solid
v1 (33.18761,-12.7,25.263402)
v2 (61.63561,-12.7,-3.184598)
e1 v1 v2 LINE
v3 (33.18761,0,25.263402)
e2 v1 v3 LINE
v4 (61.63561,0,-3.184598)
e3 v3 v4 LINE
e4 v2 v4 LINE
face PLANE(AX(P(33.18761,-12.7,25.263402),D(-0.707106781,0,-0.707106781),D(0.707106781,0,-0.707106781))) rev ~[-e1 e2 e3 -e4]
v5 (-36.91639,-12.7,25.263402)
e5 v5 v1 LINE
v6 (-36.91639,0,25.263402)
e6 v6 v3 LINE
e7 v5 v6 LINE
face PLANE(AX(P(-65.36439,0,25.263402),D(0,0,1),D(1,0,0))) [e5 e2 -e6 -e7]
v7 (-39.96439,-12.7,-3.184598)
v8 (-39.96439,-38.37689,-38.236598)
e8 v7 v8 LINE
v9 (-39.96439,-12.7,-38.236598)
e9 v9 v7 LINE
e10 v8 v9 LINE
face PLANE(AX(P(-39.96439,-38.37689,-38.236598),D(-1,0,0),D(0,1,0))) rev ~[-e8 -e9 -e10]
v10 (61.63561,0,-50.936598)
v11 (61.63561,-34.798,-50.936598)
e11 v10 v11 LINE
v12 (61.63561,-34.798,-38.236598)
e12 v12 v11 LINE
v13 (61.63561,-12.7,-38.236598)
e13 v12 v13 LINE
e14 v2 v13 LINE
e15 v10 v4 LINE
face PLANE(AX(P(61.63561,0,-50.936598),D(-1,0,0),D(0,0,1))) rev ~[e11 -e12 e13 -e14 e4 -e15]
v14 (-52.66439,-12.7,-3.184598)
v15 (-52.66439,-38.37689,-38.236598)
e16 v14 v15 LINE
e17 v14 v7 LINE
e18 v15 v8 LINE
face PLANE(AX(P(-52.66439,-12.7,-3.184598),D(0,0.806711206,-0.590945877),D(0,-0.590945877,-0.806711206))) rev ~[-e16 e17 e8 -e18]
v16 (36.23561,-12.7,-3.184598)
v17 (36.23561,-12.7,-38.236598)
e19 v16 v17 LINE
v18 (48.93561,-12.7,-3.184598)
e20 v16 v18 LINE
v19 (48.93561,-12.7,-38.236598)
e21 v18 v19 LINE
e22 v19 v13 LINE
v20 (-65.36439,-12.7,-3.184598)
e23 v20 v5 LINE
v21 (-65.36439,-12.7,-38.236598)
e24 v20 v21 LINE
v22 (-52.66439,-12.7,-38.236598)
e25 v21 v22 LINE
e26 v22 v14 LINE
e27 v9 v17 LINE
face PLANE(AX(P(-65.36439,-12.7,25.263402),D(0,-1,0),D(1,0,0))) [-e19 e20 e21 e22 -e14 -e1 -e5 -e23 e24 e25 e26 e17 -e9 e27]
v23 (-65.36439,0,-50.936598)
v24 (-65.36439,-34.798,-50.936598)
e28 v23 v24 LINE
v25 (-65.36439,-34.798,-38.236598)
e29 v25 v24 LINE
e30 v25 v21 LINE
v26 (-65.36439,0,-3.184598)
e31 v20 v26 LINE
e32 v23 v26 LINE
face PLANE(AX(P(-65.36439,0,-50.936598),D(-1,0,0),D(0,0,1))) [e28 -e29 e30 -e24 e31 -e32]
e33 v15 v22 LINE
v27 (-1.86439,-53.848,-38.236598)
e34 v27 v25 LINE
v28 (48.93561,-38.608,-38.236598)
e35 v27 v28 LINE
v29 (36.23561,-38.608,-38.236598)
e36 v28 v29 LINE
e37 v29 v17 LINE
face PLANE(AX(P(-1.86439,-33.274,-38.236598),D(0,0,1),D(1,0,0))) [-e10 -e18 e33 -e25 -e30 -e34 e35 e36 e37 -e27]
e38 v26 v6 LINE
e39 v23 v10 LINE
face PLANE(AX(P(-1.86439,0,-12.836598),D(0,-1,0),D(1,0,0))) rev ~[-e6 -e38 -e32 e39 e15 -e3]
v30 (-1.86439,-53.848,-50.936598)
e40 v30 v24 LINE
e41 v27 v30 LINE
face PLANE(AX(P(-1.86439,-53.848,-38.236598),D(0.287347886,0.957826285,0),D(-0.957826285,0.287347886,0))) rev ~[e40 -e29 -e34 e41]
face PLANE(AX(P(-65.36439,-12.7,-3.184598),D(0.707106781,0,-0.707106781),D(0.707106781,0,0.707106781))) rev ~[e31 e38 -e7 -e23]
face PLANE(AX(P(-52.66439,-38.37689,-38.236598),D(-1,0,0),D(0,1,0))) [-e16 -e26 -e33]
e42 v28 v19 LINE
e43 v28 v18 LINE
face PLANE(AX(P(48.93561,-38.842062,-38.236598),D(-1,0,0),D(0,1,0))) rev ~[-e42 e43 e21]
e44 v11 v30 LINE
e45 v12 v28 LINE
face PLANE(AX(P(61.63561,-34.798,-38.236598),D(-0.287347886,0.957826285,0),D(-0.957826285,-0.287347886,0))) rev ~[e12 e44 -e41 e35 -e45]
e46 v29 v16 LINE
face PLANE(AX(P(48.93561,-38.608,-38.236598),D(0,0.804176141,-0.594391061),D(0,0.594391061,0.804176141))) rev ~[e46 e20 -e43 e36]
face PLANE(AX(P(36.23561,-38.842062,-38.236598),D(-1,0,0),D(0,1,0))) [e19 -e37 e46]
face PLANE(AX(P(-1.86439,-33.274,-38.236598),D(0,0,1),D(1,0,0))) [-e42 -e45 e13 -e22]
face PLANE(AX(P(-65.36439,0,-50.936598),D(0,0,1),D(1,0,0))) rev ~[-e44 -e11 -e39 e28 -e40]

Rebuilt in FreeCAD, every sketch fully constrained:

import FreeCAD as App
import Part
import Sketcher
from FreeCAD import Vector
Q = App.Units.Quantity


def add_polygon(sketch, points):
    """Adds a closed chain of lines whose ends are joined by coincident constraints."""
    first, n = sketch.GeometryCount, len(points)
    for a, b in zip(points, points[1:] + points[:1]):
        sketch.addGeometry(Part.LineSegment(App.Vector(*a, 0), App.Vector(*b, 0)), False)
    for i in range(n):
        sketch.addConstraint(Sketcher.Constraint("Coincident", first + i, 2, first + (i + 1) % n, 1))

doc = App.newDocument("Part")
body = doc.addObject("PartDesign::Body", "Body")

sketch1 = doc.addObject("Sketcher::SketchObject", "Sketch")
body.addObject(sketch1)
sketch1.AttachmentSupport = (doc.XZ_Plane, [""])
sketch1.MapMode = "FlatFace"
add_polygon(sketch1, [(-65.36439, 25.263402), (-65.36439, -50.936598), (61.63561, -50.936598), (61.63561, 25.263402)])
sketch1.addConstraint([
    Sketcher.Constraint("Vertical", 0),
    Sketcher.Constraint("Horizontal", 1),
    Sketcher.Constraint("Vertical", 2),
    Sketcher.Constraint("Horizontal", 3),
    Sketcher.Constraint("DistanceX", 1, 1, 1, 2, Q("5 in")),
    Sketcher.Constraint("DistanceY", 0, 2, 0, 1, Q("3 in")),
    Sketcher.Constraint("DistanceY", -1, 1, 2, 2, Q("25.263402 mm")),
    Sketcher.Constraint("DistanceX", 0, 2, -1, 1, Q("65.36439 mm")),
])
pad1 = doc.addObject("PartDesign::Pad", "Pad")
body.addObject(pad1)
pad1.Profile = sketch1
pad1.Length = Q("2.12 in")

sketch2 = doc.addObject("Sketcher::SketchObject", "Sketch001")
body.addObject(sketch2)
sketch2.AttachmentSupport = (doc.XY_Plane, [""])
sketch2.MapMode = "FlatFace"
sketch2.AttachmentOffset = App.Placement(Vector(0, 0, 25.263402), App.Rotation())
add_polygon(sketch2, [(-65.36439, -12.7), (-65.36439, -53.848), (61.63561, -53.848), (61.63561, -12.7)])
sketch2.addConstraint([
    Sketcher.Constraint("Vertical", 0),
    Sketcher.Constraint("Horizontal", 1),
    Sketcher.Constraint("Vertical", 2),
    Sketcher.Constraint("Horizontal", 3),
    Sketcher.Constraint("DistanceX", 1, 1, 1, 2, Q("5 in")),
    Sketcher.Constraint("DistanceY", 0, 2, 0, 1, Q("1.62 in")),
    Sketcher.Constraint("DistanceY", 2, 2, -1, 1, Q("0.5 in")),
    Sketcher.Constraint("DistanceX", 0, 2, -1, 1, Q("65.36439 mm")),
])
pocket1 = doc.addObject("PartDesign::Pocket", "Pocket")
body.addObject(pocket1)
pocket1.Profile = sketch2
pocket1.Length = Q("2.5 in")

sketch3 = doc.addObject("Sketcher::SketchObject", "Sketch002")
body.addObject(sketch3)
sketch3.AttachmentSupport = (doc.XZ_Plane, [""])
sketch3.MapMode = "FlatFace"
sketch3.AttachmentOffset = App.Placement(Vector(0, 0, 0.5 * 25.4), App.Rotation())
add_polygon(sketch3, [(-36.91639, 25.263402), (-65.36439, 25.263402), (-65.36439, -3.184598)])
add_polygon(sketch3, [(61.63561, 25.263402), (33.18761, 25.263402), (61.63561, -3.184598)])
sketch3.addConstraint([
    Sketcher.Constraint("Horizontal", 0),
    Sketcher.Constraint("Vertical", 1),
    Sketcher.Constraint("Horizontal", 3),
    Sketcher.Constraint("Vertical", 5),
    Sketcher.Constraint("Perpendicular", 2, 4),
    Sketcher.Constraint("Horizontal", 2, 2, 3, 2),
    Sketcher.Constraint("Horizontal", 1, 2, 4, 2),
    Sketcher.Constraint("Equal", 0, 3),
    Sketcher.Constraint("DistanceX", 1, 2, 4, 2, Q("5 in")),
    Sketcher.Constraint("DistanceX", 0, 2, 0, 1, Q("1.12 in")),
    Sketcher.Constraint("DistanceY", -1, 1, 0, 2, Q("25.263402 mm")),
    Sketcher.Constraint("DistanceX", 0, 2, -1, 1, Q("65.36439 mm")),
])
pocket2 = doc.addObject("PartDesign::Pocket", "Pocket001")
body.addObject(pocket2)
pocket2.Profile = sketch3
pocket2.Length = Q("0.5 in")

sketch4 = doc.addObject("Sketcher::SketchObject", "Sketch003")
body.addObject(sketch4)
sketch4.AttachmentSupport = (doc.XY_Plane, [""])
sketch4.MapMode = "FlatFace"
sketch4.AttachmentOffset = App.Placement(Vector(0, 0, -38.236598), App.Rotation())
add_polygon(sketch4, [(-65.36439, -53.848), (-1.86439, -53.848), (-65.36439, -34.798)])
add_polygon(sketch4, [(-1.86439, -53.848), (61.63561, -53.848), (61.63561, -34.798)])
sketch4.addConstraint([
    Sketcher.Constraint("Horizontal", 0),
    Sketcher.Constraint("Vertical", 2),
    Sketcher.Constraint("Horizontal", 3),
    Sketcher.Constraint("Vertical", 4),
    Sketcher.Constraint("Coincident", 5, 2, 0, 2),
    Sketcher.Constraint("Horizontal", 1, 2, 4, 2),
    Sketcher.Constraint("Equal", 0, 3),
    Sketcher.Constraint("DistanceX", 0, 1, 0, 2, Q("2.5 in")),
    Sketcher.Constraint("DistanceY", 2, 2, 2, 1, Q("0.75 in")),
    Sketcher.Constraint("DistanceY", 0, 2, -1, 1, Q("2.12 in")),
    Sketcher.Constraint("DistanceX", 0, 2, -1, 1, Q("1.86439 mm")),
])
pocket3 = doc.addObject("PartDesign::Pocket", "Pocket002")
body.addObject(pocket3)
pocket3.Profile = sketch4
pocket3.Length = Q("0.5 in")

sketch5 = doc.addObject("Sketcher::SketchObject", "Sketch004")
body.addObject(sketch5)
sketch5.AttachmentSupport = (doc.XY_Plane, [""])
sketch5.MapMode = "FlatFace"
sketch5.AttachmentOffset = App.Placement(Vector(0, 0, -38.236598), App.Rotation())
add_polygon(sketch5, [(36.23561, -12.7), (36.23561, -38.842062), (48.93561, -38.842062), (48.93561, -12.7)])
sketch5.addConstraint([
    Sketcher.Constraint("Vertical", 0),
    Sketcher.Constraint("Horizontal", 1),
    Sketcher.Constraint("Vertical", 2),
    Sketcher.Constraint("Horizontal", 3),
    Sketcher.Constraint("DistanceX", 1, 1, 1, 2, Q("0.5 in")),
    Sketcher.Constraint("DistanceY", 2, 2, -1, 1, Q("0.5 in")),
    Sketcher.Constraint("DistanceY", 0, 2, 0, 1, Q("26.142063 mm")),
    Sketcher.Constraint("DistanceX", -1, 1, 0, 2, Q("36.23561 mm")),
])
pad2 = doc.addObject("PartDesign::Pad", "Pad001")
body.addObject(pad2)
pad2.Profile = sketch5
pad2.Length = Q("1.38 in")

sketch6 = doc.addObject("Sketcher::SketchObject", "Sketch005")
body.addObject(sketch6)
sketch6.AttachmentSupport = (doc.YZ_Plane, [""])
sketch6.MapMode = "FlatFace"
sketch6.AttachmentOffset = App.Placement(Vector(0, 0, 48.93561), App.Rotation())
add_polygon(sketch6, [(-38.842063, -38.236598), (-38.608, -38.236598), (-12.7, -3.184598), (-38.842063, -3.184598)])
sketch6.addConstraint([
    Sketcher.Constraint("Horizontal", 0),
    Sketcher.Constraint("Horizontal", 2),
    Sketcher.Constraint("Vertical", 3),
    Sketcher.Constraint("DistanceY", 3, 2, 3, 1, Q("1.38 in")),
    Sketcher.Constraint("DistanceX", 1, 2, -1, 1, Q("0.5 in")),
    Sketcher.Constraint("DistanceX", 0, 2, -1, 1, Q("1.52 in")),
    Sketcher.Constraint("DistanceX", 0, 1, 0, 2, Q("0.234063 mm")),
    Sketcher.Constraint("DistanceY", 0, 2, -1, 1, Q("38.236598 mm")),
])
pocket4 = doc.addObject("PartDesign::Pocket", "Pocket003")
body.addObject(pocket4)
pocket4.Profile = sketch6
pocket4.Length = Q("0.5 in")

sketch7 = doc.addObject("Sketcher::SketchObject", "Sketch006")
body.addObject(sketch7)
sketch7.AttachmentSupport = (doc.XY_Plane, [""])
sketch7.MapMode = "FlatFace"
sketch7.AttachmentOffset = App.Placement(Vector(0, 0, -38.236598), App.Rotation())
add_polygon(sketch7, [(-52.66439, -12.7), (-52.66439, -38.37689), (-39.96439, -38.37689), (-39.96439, -12.7)])
sketch7.addConstraint([
    Sketcher.Constraint("Vertical", 0),
    Sketcher.Constraint("Horizontal", 1),
    Sketcher.Constraint("Vertical", 2),
    Sketcher.Constraint("Horizontal", 3),
    Sketcher.Constraint("DistanceX", 1, 1, 1, 2, Q("0.5 in")),
    Sketcher.Constraint("DistanceY", 2, 2, -1, 1, Q("0.5 in")),
    Sketcher.Constraint("DistanceY", 0, 2, 0, 1, Q("25.67689 mm")),
    Sketcher.Constraint("DistanceX", 0, 2, -1, 1, Q("52.66439 mm")),
])
pad3 = doc.addObject("PartDesign::Pad", "Pad002")
body.addObject(pad3)
pad3.Profile = sketch7
pad3.Length = Q("1.38 in")

sketch8 = doc.addObject("Sketcher::SketchObject", "Sketch007")
body.addObject(sketch8)
sketch8.AttachmentSupport = (doc.YZ_Plane, [""])
sketch8.MapMode = "FlatFace"
sketch8.AttachmentOffset = App.Placement(Vector(0, 0, -52.66439), App.Rotation())
add_polygon(sketch8, [(-38.37689, -3.184598), (-12.7, -3.184598), (-38.37689, -38.236598)])
sketch8.addConstraint([
    Sketcher.Constraint("Horizontal", 0),
    Sketcher.Constraint("Vertical", 2),
    Sketcher.Constraint("DistanceY", 2, 1, 2, 2, Q("1.38 in")),
    Sketcher.Constraint("DistanceX", 0, 2, -1, 1, Q("0.5 in")),
    Sketcher.Constraint("DistanceX", 0, 1, 0, 2, Q("25.67689 mm")),
    Sketcher.Constraint("DistanceY", 0, 2, -1, 1, Q("3.184598 mm")),
])
pocket5 = doc.addObject("PartDesign::Pocket", "Pocket004")
body.addObject(pocket5)
pocket5.Profile = sketch8
pocket5.Length = Q("0.5 in")
pocket5.Reversed = True

doc.recompute()
